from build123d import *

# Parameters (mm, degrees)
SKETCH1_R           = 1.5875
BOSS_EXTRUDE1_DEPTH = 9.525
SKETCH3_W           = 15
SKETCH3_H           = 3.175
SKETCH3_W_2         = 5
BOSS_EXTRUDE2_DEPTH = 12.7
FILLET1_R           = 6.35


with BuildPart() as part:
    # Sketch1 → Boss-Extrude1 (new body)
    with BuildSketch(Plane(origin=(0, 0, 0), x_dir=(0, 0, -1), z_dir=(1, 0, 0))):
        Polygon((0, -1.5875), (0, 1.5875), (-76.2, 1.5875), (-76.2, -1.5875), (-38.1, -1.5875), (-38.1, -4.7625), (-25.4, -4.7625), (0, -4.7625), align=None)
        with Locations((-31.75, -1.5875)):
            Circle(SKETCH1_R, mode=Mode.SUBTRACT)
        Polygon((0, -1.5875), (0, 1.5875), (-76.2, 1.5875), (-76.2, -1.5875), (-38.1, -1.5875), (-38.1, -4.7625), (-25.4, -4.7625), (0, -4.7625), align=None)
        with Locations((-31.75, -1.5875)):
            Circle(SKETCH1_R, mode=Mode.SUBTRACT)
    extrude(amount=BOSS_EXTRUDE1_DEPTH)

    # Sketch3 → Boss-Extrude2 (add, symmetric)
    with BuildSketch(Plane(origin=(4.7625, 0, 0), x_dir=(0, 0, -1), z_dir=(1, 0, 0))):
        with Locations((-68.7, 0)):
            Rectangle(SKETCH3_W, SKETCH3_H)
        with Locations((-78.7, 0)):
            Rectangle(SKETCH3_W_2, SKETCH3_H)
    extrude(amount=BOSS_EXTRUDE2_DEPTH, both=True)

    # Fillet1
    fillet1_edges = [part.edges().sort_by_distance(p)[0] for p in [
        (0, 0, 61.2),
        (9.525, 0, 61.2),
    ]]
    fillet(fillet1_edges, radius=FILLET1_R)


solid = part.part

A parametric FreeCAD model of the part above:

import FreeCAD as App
import Part
import Sketcher

V = App.Vector
Q = App.Units.Quantity


def edges_at(feature, points):
    """Names of the edges that pass closest to the given points."""
    edges = feature.Shape.Edges
    near = lambda p: min(range(len(edges)), key=lambda i: edges[i].distToShape(Part.Vertex(*p))[0])
    return sorted({f"Edge{near(p) + 1}" for p in points})


def add_polygon(sketch, points):
    """Adds a closed chain of lines whose ends are joined by coincident constraints."""
    first, n = sketch.GeometryCount, len(points)
    for a, b in zip(points, points[1:] + points[:1]):
        sketch.addGeometry(Part.LineSegment(App.Vector(*a, 0), App.Vector(*b, 0)), False)
    for i in range(n):
        sketch.addConstraint(Sketcher.Constraint("Coincident", first + i, 2, first + (i + 1) % n, 1))

doc = App.newDocument("Part")
params = doc.addObject("Spreadsheet::Sheet", "Params")
for row, (alias, value) in enumerate([
    ("sketch1_height", "3 in"),
    ("sketch1_diameter", "0.125 in"),
    ("sketch1_width", "0.25 in"),
    ("pad1_length", "0.375 in"),
    ("sketch2_width", "0.125 in"),
    ("pad2_length", "1 in"),
    ("fillet_radius", "0.25 in"),
], start=1):
    params.set(f"A{row}", alias)
    params.set(f"B{row}", "=" + value)
    params.setAlias(f"B{row}", alias)

body = doc.addObject("PartDesign::Body", "Body")

sketch1 = doc.addObject("Sketcher::SketchObject", "Sketch")
body.addObject(sketch1)
sketch1.AttachmentSupport = (doc.YZ_Plane, [""])
sketch1.MapMode = "FlatFace"
add_polygon(sketch1, [(1.5875, 0), (1.5875, 76.2), (-1.5875, 76.2), (-1.5875, 38.1), (-4.7625, 38.1), (-4.7625, 0)])
sketch1.addGeometry(Part.Circle(V(-1.5875, 31.75, 0), V(0, 0, 1), 1.5875), False)
sketch1.addConstraint([
    Sketcher.Constraint("Vertical", 0),
    Sketcher.Constraint("Horizontal", 1),
    Sketcher.Constraint("Vertical", 2),
    Sketcher.Constraint("Horizontal", 3),
    Sketcher.Constraint("Vertical", 4),
    Sketcher.Constraint("Horizontal", 5),
    Sketcher.Constraint("PointOnObject", 4, 2, -1),
    Sketcher.Constraint("Vertical", 6, 3, 1, 2),
    Sketcher.Constraint("Equal", 1, 3),
    Sketcher.Constraint("Equal", 2, 4),
    Sketcher.Constraint("DistanceY", 0, 1, 0, 2, Q("3 in")),
    Sketcher.Constraint("Diameter", 6, Q("0.125 in")),
    Sketcher.Constraint("DistanceX", 5, 1, 5, 2, Q("0.25 in")),
    Sketcher.Constraint("DistanceY", -1, 1, 6, 3, Q("1.25 in")),
    Sketcher.Constraint("DistanceX", 6, 3, -1, 1, Q("0.0625 in")),
])
sketch1.setExpression("Constraints[16]", "Params.sketch1_height")
sketch1.setExpression("Constraints[17]", "Params.sketch1_diameter")
sketch1.setExpression("Constraints[18]", "Params.sketch1_width")
pad1 = doc.addObject("PartDesign::Pad", "Pad")
body.addObject(pad1)
pad1.Profile = sketch1
pad1.setExpression("Length", "Params.pad1_length")

sketch2 = doc.addObject("Sketcher::SketchObject", "Sketch001")
body.addObject(sketch2)
sketch2.AttachmentSupport = (doc.YZ_Plane, [""])
sketch2.MapMode = "FlatFace"
sketch2.AttachmentOffset = App.Placement(V(0, 0, 0.1875 * 25.4), App.Rotation())
add_polygon(sketch2, [(-1.5875, 61.2), (1.5875, 61.2), (1.5875, 81.2), (-1.5875, 81.2)])
sketch2.addConstraint([
    Sketcher.Constraint("Horizontal", 0),
    Sketcher.Constraint("Vertical", 1),
    Sketcher.Constraint("Horizontal", 2),
    Sketcher.Constraint("Vertical", 3),
    Sketcher.Constraint("DistanceX", 0, 1, 0, 2, Q("0.125 in")),
    Sketcher.Constraint("DistanceX", -1, 1, 0, 2, Q("0.0625 in")),
    Sketcher.Constraint("DistanceY", 1, 1, 1, 2, 20.0),
    Sketcher.Constraint("DistanceY", -1, 1, 0, 2, 61.2),
])
sketch2.setExpression("Constraints[8]", "Params.sketch2_width")
pad2 = doc.addObject("PartDesign::Pad", "Pad001")
body.addObject(pad2)
pad2.Profile = sketch2
pad2.setExpression("Length", "Params.pad2_length")
pad2.Midplane = True
doc.recompute()

fillet = doc.addObject("PartDesign::Fillet", "Fillet")
body.addObject(fillet)
fillet.Base = (pad2, edges_at(pad2, [(0, 0, 61.2), (9.525, 0, 61.2)]))
fillet.setExpression("Radius", "Params.fillet_radius")

doc.recompute()
